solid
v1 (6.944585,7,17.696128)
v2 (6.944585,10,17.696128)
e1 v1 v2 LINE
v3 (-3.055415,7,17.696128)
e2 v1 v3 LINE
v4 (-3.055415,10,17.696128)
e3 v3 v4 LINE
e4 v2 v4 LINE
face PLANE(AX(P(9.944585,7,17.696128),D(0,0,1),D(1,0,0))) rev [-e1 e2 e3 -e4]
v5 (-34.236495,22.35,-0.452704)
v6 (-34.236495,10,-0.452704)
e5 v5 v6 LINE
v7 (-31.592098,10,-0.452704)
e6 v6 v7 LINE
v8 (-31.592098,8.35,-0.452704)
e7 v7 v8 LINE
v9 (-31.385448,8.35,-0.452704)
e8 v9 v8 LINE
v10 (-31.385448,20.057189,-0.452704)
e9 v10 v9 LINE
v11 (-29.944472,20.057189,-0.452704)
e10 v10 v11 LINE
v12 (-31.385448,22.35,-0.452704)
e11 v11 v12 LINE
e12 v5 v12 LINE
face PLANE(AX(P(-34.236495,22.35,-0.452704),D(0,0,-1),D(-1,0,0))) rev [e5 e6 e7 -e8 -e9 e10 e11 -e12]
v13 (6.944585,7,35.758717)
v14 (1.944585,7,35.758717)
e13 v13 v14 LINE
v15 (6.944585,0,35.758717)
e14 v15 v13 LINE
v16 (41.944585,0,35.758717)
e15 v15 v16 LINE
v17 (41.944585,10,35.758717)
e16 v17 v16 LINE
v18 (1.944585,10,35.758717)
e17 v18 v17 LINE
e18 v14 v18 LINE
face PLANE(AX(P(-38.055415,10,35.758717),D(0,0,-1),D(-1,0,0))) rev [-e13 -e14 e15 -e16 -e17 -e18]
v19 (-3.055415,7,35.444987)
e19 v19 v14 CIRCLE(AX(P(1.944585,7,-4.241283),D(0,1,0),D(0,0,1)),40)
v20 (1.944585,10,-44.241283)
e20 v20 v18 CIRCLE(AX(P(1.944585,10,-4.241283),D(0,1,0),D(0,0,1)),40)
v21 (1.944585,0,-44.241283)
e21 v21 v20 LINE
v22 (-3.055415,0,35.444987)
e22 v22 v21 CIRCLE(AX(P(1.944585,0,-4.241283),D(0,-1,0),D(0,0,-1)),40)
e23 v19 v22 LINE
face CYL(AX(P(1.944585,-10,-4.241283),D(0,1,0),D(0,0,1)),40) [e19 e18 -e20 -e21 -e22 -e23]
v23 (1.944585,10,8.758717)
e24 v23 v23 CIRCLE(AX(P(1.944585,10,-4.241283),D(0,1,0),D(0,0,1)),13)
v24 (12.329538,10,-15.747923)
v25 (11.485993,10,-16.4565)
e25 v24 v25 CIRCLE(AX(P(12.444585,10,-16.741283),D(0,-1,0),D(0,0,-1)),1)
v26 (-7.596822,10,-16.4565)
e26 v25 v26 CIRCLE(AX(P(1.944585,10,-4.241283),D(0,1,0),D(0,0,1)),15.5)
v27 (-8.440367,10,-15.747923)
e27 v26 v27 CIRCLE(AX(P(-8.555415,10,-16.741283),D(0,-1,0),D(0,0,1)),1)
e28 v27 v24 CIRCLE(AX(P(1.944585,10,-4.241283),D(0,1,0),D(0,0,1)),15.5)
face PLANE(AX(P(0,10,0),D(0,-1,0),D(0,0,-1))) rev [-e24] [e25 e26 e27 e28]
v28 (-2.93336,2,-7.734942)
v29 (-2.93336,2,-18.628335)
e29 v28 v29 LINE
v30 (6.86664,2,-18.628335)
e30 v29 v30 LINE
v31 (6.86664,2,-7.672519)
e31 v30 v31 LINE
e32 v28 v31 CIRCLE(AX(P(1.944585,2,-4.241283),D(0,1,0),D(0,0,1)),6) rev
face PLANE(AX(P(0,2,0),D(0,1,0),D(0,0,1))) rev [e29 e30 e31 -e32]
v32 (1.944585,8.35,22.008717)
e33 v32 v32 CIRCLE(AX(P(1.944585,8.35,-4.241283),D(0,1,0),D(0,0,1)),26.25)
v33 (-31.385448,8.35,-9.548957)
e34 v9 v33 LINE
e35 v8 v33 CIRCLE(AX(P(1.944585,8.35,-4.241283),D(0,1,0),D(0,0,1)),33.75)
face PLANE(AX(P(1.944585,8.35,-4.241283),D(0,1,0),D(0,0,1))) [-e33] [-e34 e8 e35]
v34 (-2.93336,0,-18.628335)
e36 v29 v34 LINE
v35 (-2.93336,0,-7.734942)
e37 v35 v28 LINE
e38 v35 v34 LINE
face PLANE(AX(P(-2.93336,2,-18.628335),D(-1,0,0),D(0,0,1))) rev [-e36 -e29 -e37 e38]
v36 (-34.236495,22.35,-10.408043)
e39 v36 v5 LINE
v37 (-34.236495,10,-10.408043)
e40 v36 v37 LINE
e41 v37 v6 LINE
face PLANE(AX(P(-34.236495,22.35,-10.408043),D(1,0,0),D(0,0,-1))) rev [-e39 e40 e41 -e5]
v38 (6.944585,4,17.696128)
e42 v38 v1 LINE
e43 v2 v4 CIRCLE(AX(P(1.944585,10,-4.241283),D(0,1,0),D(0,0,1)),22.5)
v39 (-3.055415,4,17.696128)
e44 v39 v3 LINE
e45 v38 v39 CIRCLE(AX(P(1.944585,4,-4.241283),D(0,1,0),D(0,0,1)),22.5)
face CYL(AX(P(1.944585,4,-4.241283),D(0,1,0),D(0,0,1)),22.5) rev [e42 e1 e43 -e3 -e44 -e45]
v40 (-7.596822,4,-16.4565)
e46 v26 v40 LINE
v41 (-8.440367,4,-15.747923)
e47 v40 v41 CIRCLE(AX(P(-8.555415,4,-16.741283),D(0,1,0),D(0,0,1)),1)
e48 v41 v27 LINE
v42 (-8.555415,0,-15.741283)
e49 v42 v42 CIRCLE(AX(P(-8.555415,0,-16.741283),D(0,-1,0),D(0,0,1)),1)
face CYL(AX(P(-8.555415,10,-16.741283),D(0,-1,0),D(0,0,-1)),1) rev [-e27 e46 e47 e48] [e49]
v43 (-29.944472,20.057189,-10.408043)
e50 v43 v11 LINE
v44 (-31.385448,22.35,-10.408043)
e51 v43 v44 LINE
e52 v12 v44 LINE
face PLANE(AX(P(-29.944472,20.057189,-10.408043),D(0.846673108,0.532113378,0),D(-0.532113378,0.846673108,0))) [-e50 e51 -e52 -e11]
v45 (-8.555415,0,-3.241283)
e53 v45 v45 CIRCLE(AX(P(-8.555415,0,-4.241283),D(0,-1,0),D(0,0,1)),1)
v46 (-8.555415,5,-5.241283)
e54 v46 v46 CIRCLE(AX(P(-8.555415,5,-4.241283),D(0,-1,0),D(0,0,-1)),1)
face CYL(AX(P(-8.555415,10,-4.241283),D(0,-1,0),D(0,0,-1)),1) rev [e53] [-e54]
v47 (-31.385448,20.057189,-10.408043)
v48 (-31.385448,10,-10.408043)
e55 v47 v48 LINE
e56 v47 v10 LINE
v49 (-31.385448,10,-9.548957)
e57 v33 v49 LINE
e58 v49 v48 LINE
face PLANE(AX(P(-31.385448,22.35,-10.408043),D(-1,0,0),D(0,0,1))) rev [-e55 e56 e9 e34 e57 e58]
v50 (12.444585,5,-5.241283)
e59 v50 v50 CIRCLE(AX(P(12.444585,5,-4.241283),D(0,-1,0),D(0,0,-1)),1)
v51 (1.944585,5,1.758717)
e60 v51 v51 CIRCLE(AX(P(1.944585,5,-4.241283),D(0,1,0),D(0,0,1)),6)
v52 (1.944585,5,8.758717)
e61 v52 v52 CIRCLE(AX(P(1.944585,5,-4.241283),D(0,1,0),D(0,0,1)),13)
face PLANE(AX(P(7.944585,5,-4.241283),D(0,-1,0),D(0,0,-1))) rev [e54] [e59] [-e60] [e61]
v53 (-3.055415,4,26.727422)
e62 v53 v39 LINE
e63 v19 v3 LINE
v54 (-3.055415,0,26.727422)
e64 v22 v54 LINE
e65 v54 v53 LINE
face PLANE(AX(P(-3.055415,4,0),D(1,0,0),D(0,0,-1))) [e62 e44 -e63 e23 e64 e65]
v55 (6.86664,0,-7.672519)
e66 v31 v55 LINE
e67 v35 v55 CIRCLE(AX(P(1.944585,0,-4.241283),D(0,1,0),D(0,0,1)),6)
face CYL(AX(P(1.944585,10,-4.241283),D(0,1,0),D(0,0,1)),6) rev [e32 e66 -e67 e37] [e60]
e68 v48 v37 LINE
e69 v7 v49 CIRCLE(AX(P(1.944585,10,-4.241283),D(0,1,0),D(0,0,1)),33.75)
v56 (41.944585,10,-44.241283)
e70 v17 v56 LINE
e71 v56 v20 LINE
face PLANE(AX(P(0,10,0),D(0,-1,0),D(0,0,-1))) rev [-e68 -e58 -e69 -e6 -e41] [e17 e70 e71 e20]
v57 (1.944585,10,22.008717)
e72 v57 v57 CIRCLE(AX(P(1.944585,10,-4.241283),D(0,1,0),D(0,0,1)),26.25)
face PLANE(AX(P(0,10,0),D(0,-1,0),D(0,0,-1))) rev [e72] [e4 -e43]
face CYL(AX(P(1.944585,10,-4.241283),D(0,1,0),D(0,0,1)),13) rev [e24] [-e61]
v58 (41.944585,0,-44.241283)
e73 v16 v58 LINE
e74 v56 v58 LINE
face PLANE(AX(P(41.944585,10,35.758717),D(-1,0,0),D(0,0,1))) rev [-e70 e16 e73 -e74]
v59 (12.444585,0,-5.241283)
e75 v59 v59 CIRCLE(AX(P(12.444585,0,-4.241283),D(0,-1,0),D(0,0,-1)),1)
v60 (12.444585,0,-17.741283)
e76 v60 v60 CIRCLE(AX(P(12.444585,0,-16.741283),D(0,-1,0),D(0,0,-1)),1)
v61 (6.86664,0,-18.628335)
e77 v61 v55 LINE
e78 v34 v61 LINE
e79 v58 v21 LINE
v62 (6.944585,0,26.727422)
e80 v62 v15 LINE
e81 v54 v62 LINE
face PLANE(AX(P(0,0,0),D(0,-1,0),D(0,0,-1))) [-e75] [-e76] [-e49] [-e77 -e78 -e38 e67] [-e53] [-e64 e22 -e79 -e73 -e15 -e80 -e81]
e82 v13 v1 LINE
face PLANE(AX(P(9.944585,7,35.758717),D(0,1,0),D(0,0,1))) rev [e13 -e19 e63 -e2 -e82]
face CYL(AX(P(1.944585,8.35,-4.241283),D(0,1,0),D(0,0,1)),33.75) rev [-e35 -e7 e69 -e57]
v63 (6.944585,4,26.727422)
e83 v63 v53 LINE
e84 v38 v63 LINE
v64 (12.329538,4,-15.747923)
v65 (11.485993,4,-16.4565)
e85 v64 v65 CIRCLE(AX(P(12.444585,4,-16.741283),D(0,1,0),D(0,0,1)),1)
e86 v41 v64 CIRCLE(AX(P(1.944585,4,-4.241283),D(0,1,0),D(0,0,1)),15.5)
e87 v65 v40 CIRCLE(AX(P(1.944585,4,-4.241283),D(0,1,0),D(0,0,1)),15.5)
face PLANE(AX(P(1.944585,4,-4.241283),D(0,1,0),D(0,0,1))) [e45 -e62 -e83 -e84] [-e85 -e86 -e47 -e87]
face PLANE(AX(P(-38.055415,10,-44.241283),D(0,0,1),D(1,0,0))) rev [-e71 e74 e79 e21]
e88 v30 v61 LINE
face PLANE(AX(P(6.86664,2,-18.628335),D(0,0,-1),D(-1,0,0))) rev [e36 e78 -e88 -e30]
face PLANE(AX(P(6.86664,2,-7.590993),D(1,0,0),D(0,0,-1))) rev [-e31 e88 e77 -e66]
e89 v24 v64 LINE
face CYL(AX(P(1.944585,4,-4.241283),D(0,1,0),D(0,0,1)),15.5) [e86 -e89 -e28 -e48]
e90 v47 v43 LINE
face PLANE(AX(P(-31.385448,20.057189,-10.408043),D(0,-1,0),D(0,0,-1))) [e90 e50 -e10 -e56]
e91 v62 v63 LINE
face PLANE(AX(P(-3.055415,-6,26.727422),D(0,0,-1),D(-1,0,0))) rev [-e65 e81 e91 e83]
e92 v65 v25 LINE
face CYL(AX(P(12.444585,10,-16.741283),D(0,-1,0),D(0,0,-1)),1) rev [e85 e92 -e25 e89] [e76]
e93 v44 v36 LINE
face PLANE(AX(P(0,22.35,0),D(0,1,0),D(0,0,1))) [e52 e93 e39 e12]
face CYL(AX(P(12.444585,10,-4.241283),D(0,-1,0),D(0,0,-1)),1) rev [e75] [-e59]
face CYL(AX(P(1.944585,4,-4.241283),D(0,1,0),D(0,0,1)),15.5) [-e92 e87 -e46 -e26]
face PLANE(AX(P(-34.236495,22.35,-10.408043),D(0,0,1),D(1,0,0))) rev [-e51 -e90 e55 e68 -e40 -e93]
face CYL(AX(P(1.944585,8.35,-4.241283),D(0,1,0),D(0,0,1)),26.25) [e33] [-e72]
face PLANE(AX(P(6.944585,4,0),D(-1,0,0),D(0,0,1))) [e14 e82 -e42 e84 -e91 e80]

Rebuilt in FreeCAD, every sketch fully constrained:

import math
import FreeCAD as App
import Part
import Sketcher


def add_polygon(sketch, points):
    """Adds a closed chain of lines whose ends are joined by coincident constraints."""
    first, n = sketch.GeometryCount, len(points)
    for a, b in zip(points, points[1:] + points[:1]):
        sketch.addGeometry(Part.LineSegment(App.Vector(*a, 0), App.Vector(*b, 0)), False)
    for i in range(n):
        sketch.addConstraint(Sketcher.Constraint("Coincident", first + i, 2, first + (i + 1) % n, 1))

doc = App.newDocument("Part")
body = doc.addObject("PartDesign::Body", "Body")

# Sketch on XZ plane
sketch1 = doc.addObject("Sketcher::SketchObject", "Sketch")
body.addObject(sketch1)
sketch1.AttachmentSupport = (doc.XZ_Plane, [""])
sketch1.MapMode = "FlatFace"
add_polygon(sketch1, [(-38, -44), (-38, 36), (42, 36), (42, -44)])  # lines 0-3
sketch1.addConstraint([
    Sketcher.Constraint("Vertical", 0),
    Sketcher.Constraint("Horizontal", 1),
    Sketcher.Constraint("Vertical", 2),
    Sketcher.Constraint("Horizontal", 3),
    Sketcher.Constraint("Equal", 3, 0),
    Sketcher.Constraint("DistanceX", 1, 1, 1, 2, 80.0),
    Sketcher.Constraint("DistanceX", 0, 2, -1, 1, 38.055415),
    Sketcher.Constraint("DistanceY", -1, 1, 0, 2, 35.758717),
])
pad1 = doc.addObject("PartDesign::Pad", "Pad")
body.addObject(pad1)
pad1.Profile = sketch1
pad1.Length = 10
pad1.Reversed = True

# Sketch on XZ plane
sketch2 = doc.addObject("Sketcher::SketchObject", "Sketch001")
body.addObject(sketch2)
sketch2.AttachmentSupport = (doc.XZ_Plane, [""])
sketch2.MapMode = "FlatFace"
sketch2.AttachmentOffset = App.Placement(App.Vector(0, 0, -10), App.Rotation())
sketch2.addGeometry(Part.Circle(App.Vector(2, -4, 0), App.Vector(0, 0, 1), 6), False)
sketch2.addConstraint([
    Sketcher.Constraint("Diameter", 0, 12.0),
    Sketcher.Constraint("DistanceX", -1, 1, 0, 3, 1.944585),
    Sketcher.Constraint("DistanceY", 0, 3, -1, 1, 4.241283),
])
doc.recompute()
hole = doc.addObject("PartDesign::Hole", "Hole")
body.addObject(hole)
hole.Profile = sketch2
hole.ThreadType = "None"
hole.Diameter = 12
hole.DepthType = "ThroughAll"
hole.HoleCutType = "Counterbore"
hole.HoleCutDiameter = 26
hole.HoleCutDepth = 5
hole.Reversed = True

# Sketch on XZ plane
sketch3 = doc.addObject("Sketcher::SketchObject", "Sketch002")
body.addObject(sketch3)
sketch3.AttachmentSupport = (doc.XZ_Plane, [""])
sketch3.MapMode = "FlatFace"
sketch3.AttachmentOffset = App.Placement(App.Vector(0, 0, -10), App.Rotation())
sketch3.addGeometry([
    Part.Circle(App.Vector(2, -4, 0), App.Vector(0, 0, 1), 22),
    Part.Circle(App.Vector(2, -4, 0), App.Vector(0, 0, 1), 16),
], False)
sketch3.addConstraint([
    Sketcher.Constraint("Coincident", 1, 3, 0, 3),
    Sketcher.Constraint("Diameter", 0, 45.0),
    Sketcher.Constraint("Diameter", 1, 31.0),
    Sketcher.Constraint("DistanceX", -1, 1, 0, 3, 1.944585),
    Sketcher.Constraint("DistanceY", 0, 3, -1, 1, 4.241283),
])
pocket1 = doc.addObject("PartDesign::Pocket", "Pocket")
body.addObject(pocket1)
pocket1.Profile = sketch3
pocket1.Length = 6
pocket1.Reversed = True

# Sketch on XZ plane
sketch4 = doc.addObject("Sketcher::SketchObject", "Sketch003")
body.addObject(sketch4)
sketch4.AttachmentSupport = (doc.XZ_Plane, [""])
sketch4.MapMode = "FlatFace"
sketch4.AttachmentOffset = App.Placement(App.Vector(0, 0, -10), App.Rotation())
sketch4.addGeometry([
    Part.LineSegment(App.Vector(7, 36, 0), App.Vector(7, 18, 0)),
    Part.ArcOfCircle(Part.Circle(App.Vector(2, -4, 0), App.Vector(0, 0, 1), 22), math.radians(77), math.radians(103)),
    Part.LineSegment(App.Vector(-3, 18, 0), App.Vector(-3, 36, 0)),
    Part.LineSegment(App.Vector(-3, 36, 0), App.Vector(7, 36, 0)),
], False)
sketch4.addConstraint([
    Sketcher.Constraint("Coincident", 0, 2, 1, 1),
    Sketcher.Constraint("Coincident", 1, 2, 2, 1),
    Sketcher.Constraint("Coincident", 2, 2, 3, 1),
    Sketcher.Constraint("Coincident", 3, 2, 0, 1),
    Sketcher.Constraint("Vertical", 0),
    Sketcher.Constraint("Vertical", 2),
    Sketcher.Constraint("Horizontal", 3),
    Sketcher.Constraint("Horizontal", 0, 2, 1, 2),
    Sketcher.Constraint("Radius", 1, 22.5),
    Sketcher.Constraint("DistanceX", 3, 1, 3, 2, 10.0),
    Sketcher.Constraint("DistanceY", 1, 3, 2, 2, 40.0),
    Sketcher.Constraint("DistanceX", -1, 1, 1, 3, 1.944585),
    Sketcher.Constraint("DistanceY", 1, 3, -1, 1, 4.241283),
])
pocket2 = doc.addObject("PartDesign::Pocket", "Pocket001")
body.addObject(pocket2)
pocket2.Profile = sketch4
pocket2.Length = 6
pocket2.Reversed = True

# Sketch on YZ plane
sketch5 = doc.addObject("Sketcher::SketchObject", "Sketch004")
body.addObject(sketch5)
sketch5.AttachmentSupport = (doc.YZ_Plane, [""])
sketch5.MapMode = "FlatFace"
sketch5.AttachmentOffset = App.Placement(App.Vector(0, 0, -3.055415), App.Rotation())
add_polygon(sketch5, [(10, 35.8), (7, 35.8), (7, 17.7), (10, 17.7)])  # lines 0-3
sketch5.addConstraint([
    Sketcher.Constraint("Horizontal", 0),
    Sketcher.Constraint("Vertical", 1),
    Sketcher.Constraint("Horizontal", 2),
    Sketcher.Constraint("Vertical", 3),
    Sketcher.Constraint("DistanceX", 0, 2, 0, 1, 3.0),
    Sketcher.Constraint("DistanceX", -1, 1, 0, 2, 7.0),
    Sketcher.Constraint("DistanceY", 1, 2, 1, 1, 18.062589),
    Sketcher.Constraint("DistanceY", -1, 1, 0, 2, 35.758717),
])
pad2 = doc.addObject("PartDesign::Pad", "Pad001")
body.addObject(pad2)
pad2.Profile = sketch5
pad2.Length = 13

# Sketch on XZ plane
sketch6 = doc.addObject("Sketcher::SketchObject", "Sketch005")
body.addObject(sketch6)
sketch6.AttachmentSupport = (doc.XZ_Plane, [""])
sketch6.MapMode = "FlatFace"
sketch6.AttachmentOffset = App.Placement(App.Vector(0, 0, -4), App.Rotation())
add_polygon(sketch6, [(-3, 27), (-3, 36), (7, 36), (7, 27)])  # lines 0-3
sketch6.addConstraint([
    Sketcher.Constraint("Vertical", 0),
    Sketcher.Constraint("Horizontal", 1),
    Sketcher.Constraint("Vertical", 2),
    Sketcher.Constraint("Horizontal", 3),
    Sketcher.Constraint("DistanceX", 1, 1, 1, 2, 10.0),
    Sketcher.Constraint("DistanceY", 0, 1, 0, 2, 9.031295),
    Sketcher.Constraint("DistanceX", 0, 2, -1, 1, 3.055415),
    Sketcher.Constraint("DistanceY", -1, 1, 0, 2, 35.758717),
])
pocket3 = doc.addObject("PartDesign::Pocket", "Pocket002")
body.addObject(pocket3)
pocket3.Profile = sketch6
pocket3.Length = 10
pocket3.Reversed = True

# Sketch on XZ plane
sketch7 = doc.addObject("Sketcher::SketchObject", "Sketch006")
body.addObject(sketch7)
sketch7.AttachmentSupport = (doc.XZ_Plane, [""])
sketch7.MapMode = "FlatFace"
sketch7.AttachmentOffset = App.Placement(App.Vector(0, 0, -10), App.Rotation())
sketch7.addGeometry([
    Part.Circle(App.Vector(2, -4, 0), App.Vector(0, 0, 1), 34),
    Part.Circle(App.Vector(2, -4, 0), App.Vector(0, 0, 1), 26),
], False)
sketch7.addConstraint([
    Sketcher.Constraint("Coincident", 1, 3, 0, 3),
    Sketcher.Constraint("Diameter", 0, 67.5),
    Sketcher.Constraint("Diameter", 1, 52.5),
    Sketcher.Constraint("DistanceX", -1, 1, 0, 3, 1.944585),
    Sketcher.Constraint("DistanceY", 0, 3, -1, 1, 4.241283),
])
pocket4 = doc.addObject("PartDesign::Pocket", "Pocket003")
body.addObject(pocket4)
pocket4.Profile = sketch7
pocket4.Length = 1.65
pocket4.Reversed = True

# Sketch on XZ plane
sketch8 = doc.addObject("Sketcher::SketchObject", "Sketch007")
body.addObject(sketch8)
sketch8.AttachmentSupport = (doc.XZ_Plane, [""])
sketch8.MapMode = "FlatFace"
sketch8.addGeometry([
    Part.Circle(App.Vector(12.4, -16.7, 0), App.Vector(0, 0, 1), 1),
    Part.Circle(App.Vector(12.4, -4.2, 0), App.Vector(0, 0, 1), 1),
    Part.Circle(App.Vector(-8.6, -16.7, 0), App.Vector(0, 0, 1), 1),
    Part.Circle(App.Vector(-8.6, -4.2, 0), App.Vector(0, 0, 1), 1),
], False)
sketch8.addConstraint([
    Sketcher.Constraint("Equal", 0, 1),
    Sketcher.Constraint("Equal", 1, 2),
    Sketcher.Constraint("Equal", 2, 3),
    Sketcher.Constraint("Horizontal", 0, 3, 2, 3),
    Sketcher.Constraint("Horizontal", 1, 3, 3, 3),
    Sketcher.Constraint("Vertical", 0, 3, 1, 3),
    Sketcher.Constraint("Vertical", 2, 3, 3, 3),
    Sketcher.Constraint("Diameter", 0, 2.0),
    Sketcher.Constraint("DistanceX", 2, 3, 0, 3, 21.0),
    Sketcher.Constraint("DistanceY", 0, 3, 1, 3, 12.5),
    Sketcher.Constraint("DistanceX", -1, 1, 0, 3, 12.444585),
    Sketcher.Constraint("DistanceY", 0, 3, -1, 1, 16.741283),
])
pocket5 = doc.addObject("PartDesign::Pocket", "Pocket004")
body.addObject(pocket5)
pocket5.Profile = sketch8
pocket5.Length = 10

# Sketch on XZ plane
sketch9 = doc.addObject("Sketcher::SketchObject", "Sketch008")
body.addObject(sketch9)
sketch9.AttachmentSupport = (doc.XZ_Plane, [""])
sketch9.MapMode = "FlatFace"
add_polygon(sketch9, [(-3, -8), (-3, -19), (7, -19), (7, -8)])  # lines 0-3
sketch9.addConstraint([
    Sketcher.Constraint("Vertical", 0),
    Sketcher.Constraint("Horizontal", 1),
    Sketcher.Constraint("Vertical", 2),
    Sketcher.Constraint("Horizontal", 3),
    Sketcher.Constraint("DistanceX", 1, 1, 1, 2, 9.8),
    Sketcher.Constraint("DistanceY", 0, 2, 0, 1, 11.037342),
    Sketcher.Constraint("DistanceX", 0, 2, -1, 1, 2.93336),
    Sketcher.Constraint("DistanceY", 0, 2, -1, 1, 18.628335),
])
pocket6 = doc.addObject("PartDesign::Pocket", "Pocket005")
body.addObject(pocket6)
pocket6.Profile = sketch9
pocket6.Length = 2

# Sketch on XZ plane
sketch10 = doc.addObject("Sketcher::SketchObject", "Sketch009")
body.addObject(sketch10)
sketch10.AttachmentSupport = (doc.XZ_Plane, [""])
sketch10.MapMode = "FlatFace"
sketch10.AttachmentOffset = App.Placement(App.Vector(0, 0, -10), App.Rotation())
sketch10.addGeometry([
    Part.ArcOfCircle(Part.Circle(App.Vector(2, -4, 0), App.Vector(0, 0, 1), 40), math.radians(180), math.radians(270)),  # 0
    Part.LineSegment(App.Vector(2, -44, 0), App.Vector(-38, -44, 0)),  # 1
    Part.LineSegment(App.Vector(-38, -44, 0), App.Vector(-38, -4, 0)),  # 2
    Part.ArcOfCircle(Part.Circle(App.Vector(2, -4, 0), App.Vector(0, 0, 1), 40), math.radians(90), math.radians(180)),  # 3
    Part.LineSegment(App.Vector(-38, -4, 0), App.Vector(-38, 36, 0)),  # 4
    Part.LineSegment(App.Vector(-38, 36, 0), App.Vector(2, 36, 0)),  # 5
], False)
sketch10.addConstraint([
    Sketcher.Constraint("Tangent", 0, 2, 1, 1),
    Sketcher.Constraint("Coincident", 1, 2, 2, 1),
    Sketcher.Constraint("Tangent", 2, 2, 0, 1),
    Sketcher.Constraint("Tangent", 3, 2, 4, 1),
    Sketcher.Constraint("Coincident", 4, 2, 5, 1),
    Sketcher.Constraint("Tangent", 5, 2, 3, 1),
    Sketcher.Constraint("Horizontal", 1),
    Sketcher.Constraint("Vertical", 2),
    Sketcher.Constraint("Vertical", 4),
    Sketcher.Constraint("Horizontal", 5),
    Sketcher.Constraint("Coincident", 3, 3, 0, 3),
    Sketcher.Constraint("Equal", 0, 3),
    Sketcher.Constraint("Radius", 0, 40.0),
    Sketcher.Constraint("DistanceX", -1, 1, 0, 3, 1.944585),
    Sketcher.Constraint("DistanceY", 0, 3, -1, 1, 4.241283),
])
pocket7 = doc.addObject("PartDesign::Pocket", "Pocket006")
body.addObject(pocket7)
pocket7.Profile = sketch10
pocket7.Length = 20
pocket7.Reversed = True

# Sketch on XZ plane
sketch11 = doc.addObject("Sketcher::SketchObject", "Sketch010")
body.addObject(sketch11)
sketch11.AttachmentSupport = (doc.XZ_Plane, [""])
sketch11.MapMode = "FlatFace"
sketch11.AttachmentOffset = App.Placement(App.Vector(0, 0, -8.35), App.Rotation())
add_polygon(sketch11, [(-34.2, -10.4), (-34.2, -0.5), (-31.4, -0.5), (-31.4, -10.4)])  # lines 0-3
sketch11.addConstraint([
    Sketcher.Constraint("Vertical", 0),
    Sketcher.Constraint("Horizontal", 1),
    Sketcher.Constraint("Vertical", 2),
    Sketcher.Constraint("Horizontal", 3),
    Sketcher.Constraint("DistanceY", 0, 1, 0, 2, 9.955339),
    Sketcher.Constraint("DistanceX", 1, 1, 1, 2, 2.851048),
    Sketcher.Constraint("DistanceX", 0, 2, -1, 1, 34.236495),
    Sketcher.Constraint("DistanceY", 0, 2, -1, 1, 0.452704),
])
pad3 = doc.addObject("PartDesign::Pad", "Pad002")
body.addObject(pad3)
pad3.Profile = sketch11
pad3.Length = 14
pad3.Reversed = True

# Sketch on XY plane
sketch12 = doc.addObject("Sketcher::SketchObject", "Sketch011")
body.addObject(sketch12)
sketch12.AttachmentSupport = (doc.XY_Plane, [""])
sketch12.MapMode = "FlatFace"
sketch12.AttachmentOffset = App.Placement(App.Vector(0, 0, -10.408043), App.Rotation())
add_polygon(sketch12, [(-31.4, 22.4), (-31.4, 20.1), (-29.9, 20.1)])  # lines 0-2
sketch12.addConstraint([
    Sketcher.Constraint("Vertical", 0),
    Sketcher.Constraint("Horizontal", 1),
    Sketcher.Constraint("DistanceY", -1, 1, 2, 2, 22.35),
    Sketcher.Constraint("DistanceY", 0, 2, 0, 1, 2.292811),
    Sketcher.Constraint("DistanceX", 1, 1, 1, 2, 1.440976),
    Sketcher.Constraint("DistanceX", 1, 2, -1, 1, 29.944472),
])
pad4 = doc.addObject("PartDesign::Pad", "Pad003")
body.addObject(pad4)
pad4.Profile = sketch12
pad4.Length = 9.955339

doc.recompute()
